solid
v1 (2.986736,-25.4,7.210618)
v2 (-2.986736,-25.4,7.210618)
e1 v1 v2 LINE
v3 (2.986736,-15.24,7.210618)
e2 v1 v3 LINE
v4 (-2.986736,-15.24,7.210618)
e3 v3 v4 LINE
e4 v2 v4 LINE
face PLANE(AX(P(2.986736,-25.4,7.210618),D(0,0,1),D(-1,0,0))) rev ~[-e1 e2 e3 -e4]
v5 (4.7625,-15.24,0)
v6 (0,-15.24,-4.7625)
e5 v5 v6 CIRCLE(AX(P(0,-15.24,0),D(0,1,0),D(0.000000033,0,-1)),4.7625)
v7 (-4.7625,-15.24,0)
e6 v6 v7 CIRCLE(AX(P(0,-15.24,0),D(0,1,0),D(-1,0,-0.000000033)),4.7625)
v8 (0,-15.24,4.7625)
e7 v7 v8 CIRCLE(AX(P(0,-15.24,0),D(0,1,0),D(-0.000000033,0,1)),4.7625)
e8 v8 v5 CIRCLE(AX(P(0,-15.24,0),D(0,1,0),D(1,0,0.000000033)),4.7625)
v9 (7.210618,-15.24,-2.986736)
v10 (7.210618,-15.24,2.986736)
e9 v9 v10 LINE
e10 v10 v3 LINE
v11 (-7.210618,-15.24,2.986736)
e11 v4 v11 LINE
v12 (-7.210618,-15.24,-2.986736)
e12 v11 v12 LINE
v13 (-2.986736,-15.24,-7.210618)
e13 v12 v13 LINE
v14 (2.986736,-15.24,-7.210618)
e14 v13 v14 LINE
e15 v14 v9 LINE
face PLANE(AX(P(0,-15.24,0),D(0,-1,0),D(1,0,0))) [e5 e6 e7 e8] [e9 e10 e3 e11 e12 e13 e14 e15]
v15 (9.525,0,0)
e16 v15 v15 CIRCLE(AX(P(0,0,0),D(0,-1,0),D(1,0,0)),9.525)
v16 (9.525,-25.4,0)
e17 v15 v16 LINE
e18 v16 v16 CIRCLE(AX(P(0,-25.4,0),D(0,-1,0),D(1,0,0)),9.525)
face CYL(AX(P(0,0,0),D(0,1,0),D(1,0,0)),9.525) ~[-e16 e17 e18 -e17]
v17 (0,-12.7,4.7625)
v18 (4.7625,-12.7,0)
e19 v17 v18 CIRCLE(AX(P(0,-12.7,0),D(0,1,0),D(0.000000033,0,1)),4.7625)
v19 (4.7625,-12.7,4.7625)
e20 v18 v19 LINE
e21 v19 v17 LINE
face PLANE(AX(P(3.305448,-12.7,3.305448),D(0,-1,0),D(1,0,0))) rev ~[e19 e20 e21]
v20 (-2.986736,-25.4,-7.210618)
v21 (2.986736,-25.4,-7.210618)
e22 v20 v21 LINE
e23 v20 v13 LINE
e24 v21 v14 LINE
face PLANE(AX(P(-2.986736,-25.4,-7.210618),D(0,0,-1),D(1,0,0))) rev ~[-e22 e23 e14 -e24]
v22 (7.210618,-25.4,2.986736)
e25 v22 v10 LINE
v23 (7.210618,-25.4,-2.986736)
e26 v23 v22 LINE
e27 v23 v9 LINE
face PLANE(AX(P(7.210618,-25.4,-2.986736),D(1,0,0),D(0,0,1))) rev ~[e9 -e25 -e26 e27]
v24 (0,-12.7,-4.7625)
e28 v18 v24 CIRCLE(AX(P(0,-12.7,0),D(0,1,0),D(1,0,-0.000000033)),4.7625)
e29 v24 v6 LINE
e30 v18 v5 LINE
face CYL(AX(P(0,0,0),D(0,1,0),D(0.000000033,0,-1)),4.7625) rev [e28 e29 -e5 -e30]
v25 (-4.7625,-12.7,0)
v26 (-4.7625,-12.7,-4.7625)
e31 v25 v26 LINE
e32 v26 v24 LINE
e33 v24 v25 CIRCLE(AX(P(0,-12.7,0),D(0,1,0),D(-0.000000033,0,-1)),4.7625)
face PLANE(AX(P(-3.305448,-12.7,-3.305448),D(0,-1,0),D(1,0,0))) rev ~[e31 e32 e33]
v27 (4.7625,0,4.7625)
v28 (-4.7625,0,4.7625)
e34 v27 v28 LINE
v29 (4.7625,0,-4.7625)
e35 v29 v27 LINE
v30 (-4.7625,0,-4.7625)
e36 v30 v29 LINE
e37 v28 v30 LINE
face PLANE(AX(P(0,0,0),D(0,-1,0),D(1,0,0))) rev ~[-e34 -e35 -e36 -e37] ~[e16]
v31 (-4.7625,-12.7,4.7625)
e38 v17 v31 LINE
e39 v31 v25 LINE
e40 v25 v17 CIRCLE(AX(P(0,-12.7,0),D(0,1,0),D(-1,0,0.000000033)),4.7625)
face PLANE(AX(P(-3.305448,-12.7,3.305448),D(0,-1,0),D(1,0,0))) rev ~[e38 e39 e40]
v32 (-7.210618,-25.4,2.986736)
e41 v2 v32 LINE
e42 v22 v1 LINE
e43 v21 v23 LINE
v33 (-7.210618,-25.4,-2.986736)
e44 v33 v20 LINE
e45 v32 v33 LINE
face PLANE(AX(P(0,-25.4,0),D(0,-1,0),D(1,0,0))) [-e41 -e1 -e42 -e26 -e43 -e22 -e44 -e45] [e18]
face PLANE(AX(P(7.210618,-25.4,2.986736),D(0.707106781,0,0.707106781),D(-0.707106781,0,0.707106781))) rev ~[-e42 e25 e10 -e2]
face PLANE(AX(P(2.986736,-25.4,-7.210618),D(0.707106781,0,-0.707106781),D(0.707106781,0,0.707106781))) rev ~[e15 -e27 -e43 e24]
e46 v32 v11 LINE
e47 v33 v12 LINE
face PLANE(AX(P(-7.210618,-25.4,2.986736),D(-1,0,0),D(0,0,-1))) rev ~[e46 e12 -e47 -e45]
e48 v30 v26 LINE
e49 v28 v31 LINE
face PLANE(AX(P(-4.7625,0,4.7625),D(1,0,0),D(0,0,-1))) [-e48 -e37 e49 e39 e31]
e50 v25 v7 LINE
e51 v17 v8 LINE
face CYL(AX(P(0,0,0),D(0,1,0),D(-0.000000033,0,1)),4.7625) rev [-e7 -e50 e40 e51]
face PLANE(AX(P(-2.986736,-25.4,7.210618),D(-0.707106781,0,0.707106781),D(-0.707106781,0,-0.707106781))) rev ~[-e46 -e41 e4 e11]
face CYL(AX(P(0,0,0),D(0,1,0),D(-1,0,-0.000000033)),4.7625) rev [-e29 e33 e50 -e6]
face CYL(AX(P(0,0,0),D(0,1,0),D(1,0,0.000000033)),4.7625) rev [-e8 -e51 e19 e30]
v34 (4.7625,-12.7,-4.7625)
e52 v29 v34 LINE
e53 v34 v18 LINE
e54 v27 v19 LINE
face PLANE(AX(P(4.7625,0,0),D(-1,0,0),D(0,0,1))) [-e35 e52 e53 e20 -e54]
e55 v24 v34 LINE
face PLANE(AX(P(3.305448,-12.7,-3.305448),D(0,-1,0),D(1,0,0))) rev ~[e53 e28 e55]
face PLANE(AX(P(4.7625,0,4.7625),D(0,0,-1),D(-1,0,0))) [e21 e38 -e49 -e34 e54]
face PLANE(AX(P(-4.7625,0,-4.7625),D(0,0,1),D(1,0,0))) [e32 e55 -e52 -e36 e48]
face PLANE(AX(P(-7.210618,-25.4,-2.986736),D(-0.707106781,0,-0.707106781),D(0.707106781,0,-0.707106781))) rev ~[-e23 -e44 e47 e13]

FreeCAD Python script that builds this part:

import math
import FreeCAD as App
import Part
import Sketcher
Q = App.Units.Quantity


def add_polygon(sketch, points):
    """Adds a closed chain of lines whose ends are joined by coincident constraints."""
    first, n = sketch.GeometryCount, len(points)
    for a, b in zip(points, points[1:] + points[:1]):
        sketch.addGeometry(Part.LineSegment(App.Vector(*a, 0), App.Vector(*b, 0)), False)
    for i in range(n):
        sketch.addConstraint(Sketcher.Constraint("Coincident", first + i, 2, first + (i + 1) % n, 1))

doc = App.newDocument("Part")
params = doc.addObject("Spreadsheet::Sheet", "Params")
for row, (alias, value) in enumerate([
    ("sketch1_diameter", "0.75 in"),
    ("pad1_length", "1 in"),
    ("sketch2_radius", "0.1875 in"),
    ("sketch3_radius", "0.1875 in"),
    ("pocket2_length", "0.5 in"),
    ("pocket3_length", "0.4 in"),
], start=1):
    params.set(f"A{row}", alias)
    params.set(f"B{row}", "=" + value)
    params.setAlias(f"B{row}", alias)

body = doc.addObject("PartDesign::Body", "Body")

sketch1 = body.newObject("Sketcher::SketchObject", "Sketch")
sketch1.AttachmentSupport = (doc.getObject("XZ_Plane"), [""])
sketch1.MapMode = "FlatFace"
sketch1.addGeometry(Part.Circle(App.Vector(0, 0, 0), App.Vector(0, 0, 1), 9.525), False)
sketch1.addConstraint([
    Sketcher.Constraint("Coincident", 0, 3, -1, 1),
    Sketcher.Constraint("Diameter", 0, Q("0.75 in")),
])
sketch1.setExpression("Constraints[1]", "Params.sketch1_diameter")
pad1 = body.newObject("PartDesign::Pad", "Pad")
pad1.Profile = sketch1
pad1.setExpression("Length", "Params.pad1_length")

sketch2 = body.newObject("Sketcher::SketchObject", "Sketch001")
sketch2.AttachmentSupport = (doc.getObject("XZ_Plane"), [""])
sketch2.MapMode = "FlatFace"
sketch2.addGeometry([
    Part.ArcOfCircle(Part.Circle(App.Vector(0, 0, 0), App.Vector(0, 0, 1), 4.7625), math.radians(0.000002), math.radians(89.999998)),
    Part.ArcOfCircle(Part.Circle(App.Vector(0, 0, 0), App.Vector(0, 0, 1), 4.7625), math.radians(90.000002), math.radians(179.999998)),
    Part.ArcOfCircle(Part.Circle(App.Vector(0, 0, 0), App.Vector(0, 0, 1), 4.7625), math.radians(-179.999998), math.radians(-90.000002)),
    Part.ArcOfCircle(Part.Circle(App.Vector(0, 0, 0), App.Vector(0, 0, 1), 4.7625), math.radians(-89.999998), math.radians(-0.000002)),
], False)
sketch2.addConstraint([
    Sketcher.Constraint("Tangent", 0, 2, 1, 1),
    Sketcher.Constraint("Tangent", 1, 2, 2, 1),
    Sketcher.Constraint("Tangent", 2, 2, 3, 1),
    Sketcher.Constraint("Tangent", 3, 2, 0, 1),
    Sketcher.Constraint("Coincident", 0, 3, -1, 1),
    Sketcher.Constraint("Equal", 0, 1),
    Sketcher.Constraint("PointOnObject", 0, 2, -2),
    Sketcher.Constraint("PointOnObject", 1, 2, -1),
    Sketcher.Constraint("PointOnObject", 2, 2, -2),
    Sketcher.Constraint("PointOnObject", 3, 2, -1),
    Sketcher.Constraint("Radius", 0, Q("0.1875 in")),
])
sketch2.setExpression("Constraints[10]", "Params.sketch2_radius")
pocket1 = body.newObject("PartDesign::Pocket", "Pocket")
pocket1.Profile = sketch2
pocket1.Type = "ThroughAll"
pocket1.Reversed = True

sketch3 = body.newObject("Sketcher::SketchObject", "Sketch002")
sketch3.AttachmentSupport = (doc.getObject("XZ_Plane"), [""])
sketch3.MapMode = "FlatFace"
sketch3.addGeometry([
    Part.LineSegment(App.Vector(4.7625, 0, 0), App.Vector(4.7625, 4.7625, 0)),
    Part.LineSegment(App.Vector(4.7625, 4.7625, 0), App.Vector(0, 4.7625, 0)),
    Part.ArcOfCircle(Part.Circle(App.Vector(0, 0, 0), App.Vector(0, 0, 1), 4.7625), math.radians(0.000002), math.radians(89.999998)),
    Part.ArcOfCircle(Part.Circle(App.Vector(0, 0, 0), App.Vector(0, 0, 1), 4.7625), math.radians(90.000002), math.radians(179.999998)),
    Part.LineSegment(App.Vector(0, 4.7625, 0), App.Vector(-4.7625, 4.7625, 0)),
    Part.LineSegment(App.Vector(-4.7625, 4.7625, 0), App.Vector(-4.7625, 0, 0)),
    Part.LineSegment(App.Vector(4.7625, -4.7625, 0), App.Vector(4.7625, 0, 0)),
    Part.ArcOfCircle(Part.Circle(App.Vector(0, 0, 0), App.Vector(0, 0, 1), 4.7625), math.radians(-89.999998), math.radians(-0.000002)),
    Part.LineSegment(App.Vector(0, -4.7625, 0), App.Vector(4.7625, -4.7625, 0)),
    Part.ArcOfCircle(Part.Circle(App.Vector(0, 0, 0), App.Vector(0, 0, 1), 4.7625), math.radians(-179.999998), math.radians(-90.000002)),
    Part.LineSegment(App.Vector(-4.7625, 0, 0), App.Vector(-4.7625, -4.7625, 0)),
    Part.LineSegment(App.Vector(-4.7625, -4.7625, 0), App.Vector(0, -4.7625, 0)),
], False)
sketch3.addConstraint([
    Sketcher.Constraint("Coincident", 0, 2, 1, 1),
    Sketcher.Constraint("Tangent", 1, 2, 2, 2),
    Sketcher.Constraint("Tangent", 2, 1, 0, 1),
    Sketcher.Constraint("Tangent", 3, 1, 4, 1),
    Sketcher.Constraint("Coincident", 4, 2, 5, 1),
    Sketcher.Constraint("Tangent", 5, 2, 3, 2),
    Sketcher.Constraint("Tangent", 6, 2, 7, 2),
    Sketcher.Constraint("Tangent", 7, 1, 8, 1),
    Sketcher.Constraint("Coincident", 8, 2, 6, 1),
    Sketcher.Constraint("Tangent", 9, 1, 10, 1),
    Sketcher.Constraint("Coincident", 10, 2, 11, 1),
    Sketcher.Constraint("Tangent", 11, 2, 9, 2),
    Sketcher.Constraint("Vertical", 0),
    Sketcher.Constraint("Horizontal", 1),
    Sketcher.Constraint("Horizontal", 4),
    Sketcher.Constraint("Vertical", 5),
    Sketcher.Constraint("Vertical", 6),
    Sketcher.Constraint("Horizontal", 8),
    Sketcher.Constraint("Vertical", 10),
    Sketcher.Constraint("Horizontal", 11),
    Sketcher.Constraint("Coincident", 2, 3, -1, 1),
    Sketcher.Constraint("Coincident", 3, 3, -1, 1),
    Sketcher.Constraint("Coincident", 7, 3, -1, 1),
    Sketcher.Constraint("Coincident", 9, 3, -1, 1),
    Sketcher.Constraint("Equal", 2, 3),
    Sketcher.Constraint("Equal", 3, 7),
    Sketcher.Constraint("Equal", 7, 9),
    Sketcher.Constraint("Radius", 2, Q("0.1875 in")),
])
sketch3.setExpression("Constraints[27]", "Params.sketch3_radius")
pocket2 = body.newObject("PartDesign::Pocket", "Pocket001")
pocket2.Profile = sketch3
pocket2.setExpression("Length", "Params.pocket2_length")
pocket2.Reversed = True

sketch4 = body.newObject("Sketcher::SketchObject", "Sketch003")
sketch4.AttachmentSupport = (doc.getObject("XZ_Plane"), [""])
sketch4.MapMode = "FlatFace"
sketch4.AttachmentOffset = App.Placement(App.Vector(0, 0, 1 * 25.4), App.Rotation())
add_polygon(sketch4, [(2.986736, 7.210618), (-2.986736, 7.210618), (-7.210618, 2.986736), (-7.210618, -2.986736), (-2.986736, -7.210618), (2.986736, -7.210618), (7.210618, -2.986736), (7.210618, 2.986736)])
sketch4.addConstraint([
    Sketcher.Constraint("Horizontal", 0),
    Sketcher.Constraint("Vertical", 2),
    Sketcher.Constraint("Horizontal", 4),
    Sketcher.Constraint("Vertical", 6),
    Sketcher.Constraint("Symmetric", 0, 2, 4, 2, -1, 1),
    Sketcher.Constraint("Symmetric", 1, 2, 5, 2, -1, 1),
    Sketcher.Constraint("Perpendicular", 1, 3),
    Sketcher.Constraint("Perpendicular", 5, 7),
    Sketcher.Constraint("Horizontal", 2, 2, 5, 2),
    Sketcher.Constraint("Horizontal", 1, 2, 6, 2),
    Sketcher.Constraint("Vertical", 0, 2, 3, 2),
    Sketcher.Constraint("Equal", 4, 2),
    Sketcher.Constraint("Distance", 1, 5.973471),
    Sketcher.Constraint("DistanceX", 0, 2, 0, 1, 5.973472),
])
pocket3 = body.newObject("PartDesign::Pocket", "Pocket002")
pocket3.Profile = sketch4
pocket3.setExpression("Length", "Params.pocket3_length")

doc.recompute()
